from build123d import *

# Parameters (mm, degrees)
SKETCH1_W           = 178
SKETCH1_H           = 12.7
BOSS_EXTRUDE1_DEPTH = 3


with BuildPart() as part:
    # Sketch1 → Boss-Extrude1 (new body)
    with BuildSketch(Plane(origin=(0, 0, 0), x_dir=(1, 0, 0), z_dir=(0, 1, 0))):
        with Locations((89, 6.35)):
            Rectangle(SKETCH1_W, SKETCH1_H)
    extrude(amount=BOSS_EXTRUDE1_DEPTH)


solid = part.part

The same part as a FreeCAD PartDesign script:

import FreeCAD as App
import Part
import Sketcher


def add_polygon(sketch, points):
    """Adds a closed chain of lines whose ends are joined by coincident constraints."""
    first, n = sketch.GeometryCount, len(points)
    for a, b in zip(points, points[1:] + points[:1]):
        sketch.addGeometry(Part.LineSegment(App.Vector(*a, 0), App.Vector(*b, 0)), False)
    for i in range(n):
        sketch.addConstraint(Sketcher.Constraint("Coincident", first + i, 2, first + (i + 1) % n, 1))

doc = App.newDocument("Part")
body = doc.addObject("PartDesign::Body", "Body")

# Sketch on XZ plane
sketch1 = body.newObject("Sketcher::SketchObject", "Sketch")
sketch1.AttachmentSupport = (doc.getObject("XZ_Plane"), [""])
sketch1.MapMode = "FlatFace"
add_polygon(sketch1, [(0, -13), (0, 0), (178, 0), (178, -13)])  # lines 0-3
sketch1.addConstraint(Sketcher.Constraint("Vertical", 0))
sketch1.addConstraint(Sketcher.Constraint("Horizontal", 1))
sketch1.addConstraint(Sketcher.Constraint("Vertical", 2))
sketch1.addConstraint(Sketcher.Constraint("Horizontal", 3))
sketch1.addConstraint(Sketcher.Constraint("Coincident", 0, 2, -1, 1))
sketch1.addConstraint(Sketcher.Constraint("DistanceX", 1, 1, 1, 2, 178.0))
sketch1.addConstraint(Sketcher.Constraint("DistanceY", 0, 1, 0, 2, 12.7))
pad1 = body.newObject("PartDesign::Pad", "Pad")
pad1.Profile = sketch1
pad1.Length = 3
pad1.Reversed = True

doc.recompute()
